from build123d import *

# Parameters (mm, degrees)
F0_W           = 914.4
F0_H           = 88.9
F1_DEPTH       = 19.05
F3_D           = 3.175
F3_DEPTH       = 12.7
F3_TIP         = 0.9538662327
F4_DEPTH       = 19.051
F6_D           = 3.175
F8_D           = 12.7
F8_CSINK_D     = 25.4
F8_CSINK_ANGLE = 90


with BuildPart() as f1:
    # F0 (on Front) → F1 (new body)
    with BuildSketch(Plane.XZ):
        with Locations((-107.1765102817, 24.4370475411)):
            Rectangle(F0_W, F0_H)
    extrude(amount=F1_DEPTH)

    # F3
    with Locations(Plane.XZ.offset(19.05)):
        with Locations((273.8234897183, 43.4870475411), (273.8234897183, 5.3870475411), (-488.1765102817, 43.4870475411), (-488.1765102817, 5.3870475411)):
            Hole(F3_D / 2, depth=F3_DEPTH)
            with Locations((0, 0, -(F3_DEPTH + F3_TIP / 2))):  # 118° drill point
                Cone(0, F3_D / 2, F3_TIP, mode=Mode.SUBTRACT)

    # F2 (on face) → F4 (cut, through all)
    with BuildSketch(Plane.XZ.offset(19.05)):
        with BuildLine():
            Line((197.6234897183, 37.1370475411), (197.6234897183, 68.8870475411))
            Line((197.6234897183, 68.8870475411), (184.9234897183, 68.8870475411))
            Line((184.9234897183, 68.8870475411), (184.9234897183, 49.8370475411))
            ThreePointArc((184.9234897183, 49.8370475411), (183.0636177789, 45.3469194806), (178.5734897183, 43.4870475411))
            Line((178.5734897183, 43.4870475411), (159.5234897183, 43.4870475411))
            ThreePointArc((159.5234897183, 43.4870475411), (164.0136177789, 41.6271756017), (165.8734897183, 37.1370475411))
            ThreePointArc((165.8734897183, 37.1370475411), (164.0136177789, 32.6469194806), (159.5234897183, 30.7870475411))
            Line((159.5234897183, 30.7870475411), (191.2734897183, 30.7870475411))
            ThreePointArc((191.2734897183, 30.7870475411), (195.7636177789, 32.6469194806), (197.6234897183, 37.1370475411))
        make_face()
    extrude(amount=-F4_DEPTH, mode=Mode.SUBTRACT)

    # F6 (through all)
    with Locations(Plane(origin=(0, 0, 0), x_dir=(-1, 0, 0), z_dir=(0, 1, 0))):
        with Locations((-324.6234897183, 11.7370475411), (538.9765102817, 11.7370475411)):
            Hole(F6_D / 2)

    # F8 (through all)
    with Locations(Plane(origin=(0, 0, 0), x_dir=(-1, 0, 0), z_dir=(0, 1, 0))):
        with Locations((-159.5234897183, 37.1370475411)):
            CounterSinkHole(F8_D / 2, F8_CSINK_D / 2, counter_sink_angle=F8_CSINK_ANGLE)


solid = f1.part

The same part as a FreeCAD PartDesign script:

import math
import FreeCAD as App
import Part
import Sketcher
Q = App.Units.Quantity


def add_polygon(sketch, points):
    """Adds a closed chain of lines whose ends are joined by coincident constraints."""
    first, n = sketch.GeometryCount, len(points)
    for a, b in zip(points, points[1:] + points[:1]):
        sketch.addGeometry(Part.LineSegment(App.Vector(*a, 0), App.Vector(*b, 0)), False)
    for i in range(n):
        sketch.addConstraint(Sketcher.Constraint("Coincident", first + i, 2, first + (i + 1) % n, 1))

doc = App.newDocument("Part")
body = doc.addObject("PartDesign::Body", "Body")

sketch1 = body.newObject("Sketcher::SketchObject", "Sketch")
sketch1.AttachmentSupport = (doc.getObject("XZ_Plane"), [""])
sketch1.MapMode = "FlatFace"
add_polygon(sketch1, [(-564, 69), (-564, -20), (350, -20), (350, 69)])
sketch1.addConstraint(Sketcher.Constraint("Vertical", 0))
sketch1.addConstraint(Sketcher.Constraint("Horizontal", 1))
sketch1.addConstraint(Sketcher.Constraint("Vertical", 2))
sketch1.addConstraint(Sketcher.Constraint("Horizontal", 3))
sketch1.addConstraint(Sketcher.Constraint("DistanceX", 1, 1, 1, 2, Q("36 in")))
sketch1.addConstraint(Sketcher.Constraint("DistanceY", 0, 2, 0, 1, Q("3.5 in")))
sketch1.addConstraint(Sketcher.Constraint("DistanceX", 0, 2, -1, 1, Q("564.37651 mm")))
sketch1.addConstraint(Sketcher.Constraint("DistanceY", 0, 2, -1, 1, Q("20.012952 mm")))
pad1 = body.newObject("PartDesign::Pad", "Pad")
pad1.Profile = sketch1
pad1.Length = Q("0.75 in")

sketch2 = body.newObject("Sketcher::SketchObject", "Sketch001")
sketch2.AttachmentSupport = (doc.getObject("XZ_Plane"), [""])
sketch2.MapMode = "FlatFace"
sketch2.AttachmentOffset = App.Placement(App.Vector(0, 0, 0.75 * 25.4), App.Rotation())
sketch2.addGeometry(Part.Circle(App.Vector(273.8, 43.5, 0), App.Vector(0, 0, 1), 1.6), False)
sketch2.addGeometry(Part.Circle(App.Vector(273.8, 5.4, 0), App.Vector(0, 0, 1), 1.6), False)
sketch2.addGeometry(Part.Circle(App.Vector(-488.2, 43.5, 0), App.Vector(0, 0, 1), 1.6), False)
sketch2.addGeometry(Part.Circle(App.Vector(-488.2, 5.4, 0), App.Vector(0, 0, 1), 1.6), False)
sketch2.addConstraint(Sketcher.Constraint("Equal", 0, 1))
sketch2.addConstraint(Sketcher.Constraint("Equal", 1, 2))
sketch2.addConstraint(Sketcher.Constraint("Equal", 2, 3))
sketch2.addConstraint(Sketcher.Constraint("Horizontal", 0, 3, 2, 3))
sketch2.addConstraint(Sketcher.Constraint("Horizontal", 1, 3, 3, 3))
sketch2.addConstraint(Sketcher.Constraint("Vertical", 0, 3, 1, 3))
sketch2.addConstraint(Sketcher.Constraint("Vertical", 2, 3, 3, 3))
sketch2.addConstraint(Sketcher.Constraint("Diameter", 0, Q("0.125 in")))
sketch2.addConstraint(Sketcher.Constraint("DistanceX", 2, 3, 0, 3, Q("30 in")))
sketch2.addConstraint(Sketcher.Constraint("DistanceY", 1, 3, 0, 3, Q("1.5 in")))
sketch2.addConstraint(Sketcher.Constraint("DistanceX", -1, 1, 0, 3, Q("273.82349 mm")))
sketch2.addConstraint(Sketcher.Constraint("DistanceY", -1, 1, 0, 3, Q("43.487048 mm")))
doc.recompute()
hole = body.newObject("PartDesign::Hole", "Hole")
hole.Profile = sketch2
hole.ThreadType = "None"
hole.Diameter = Q("0.125 in")
hole.DepthType = "Dimension"
hole.Depth = Q("0.5 in")
hole.DrillPoint = "Angled"
hole.DrillPointAngle = 118

sketch3 = body.newObject("Sketcher::SketchObject", "Sketch002")
sketch3.AttachmentSupport = (doc.getObject("XZ_Plane"), [""])
sketch3.MapMode = "FlatFace"
sketch3.AttachmentOffset = App.Placement(App.Vector(0, 0, 0.75 * 25.4), App.Rotation())
sketch3.addGeometry(Part.LineSegment(App.Vector(198, 37, 0), App.Vector(198, 69, 0)), False)
sketch3.addGeometry(Part.LineSegment(App.Vector(198, 69, 0), App.Vector(185, 69, 0)), False)
sketch3.addGeometry(Part.LineSegment(App.Vector(185, 69, 0), App.Vector(185, 50, 0)), False)
sketch3.addGeometry(Part.ArcOfCircle(Part.Circle(App.Vector(179, 50, 0), App.Vector(0, 0, 1), 6), math.radians(-90), math.radians(0)), False)
sketch3.addGeometry(Part.LineSegment(App.Vector(179, 43, 0), App.Vector(160, 43, 0)), False)
sketch3.addGeometry(Part.ArcOfCircle(Part.Circle(App.Vector(160, 37, 0), App.Vector(0, 0, 1), 6), math.radians(0), math.radians(90)), False)
sketch3.addGeometry(Part.ArcOfCircle(Part.Circle(App.Vector(160, 37, 0), App.Vector(0, 0, 1), 6), math.radians(-90), math.radians(0)), False)
sketch3.addGeometry(Part.LineSegment(App.Vector(160, 31, 0), App.Vector(191, 31, 0)), False)
sketch3.addGeometry(Part.ArcOfCircle(Part.Circle(App.Vector(191, 37, 0), App.Vector(0, 0, 1), 6), math.radians(-90), math.radians(0)), False)
sketch3.addConstraint(Sketcher.Constraint("Coincident", 0, 2, 1, 1))
sketch3.addConstraint(Sketcher.Constraint("Coincident", 1, 2, 2, 1))
sketch3.addConstraint(Sketcher.Constraint("Tangent", 2, 2, 3, 2))
sketch3.addConstraint(Sketcher.Constraint("Tangent", 3, 1, 4, 1))
sketch3.addConstraint(Sketcher.Constraint("Tangent", 4, 2, 5, 2))
sketch3.addConstraint(Sketcher.Constraint("Tangent", 5, 1, 6, 2))
sketch3.addConstraint(Sketcher.Constraint("Tangent", 6, 1, 7, 1))
sketch3.addConstraint(Sketcher.Constraint("Tangent", 7, 2, 8, 1))
sketch3.addConstraint(Sketcher.Constraint("Tangent", 8, 2, 0, 1))
sketch3.addConstraint(Sketcher.Constraint("Vertical", 0))
sketch3.addConstraint(Sketcher.Constraint("Horizontal", 1))
sketch3.addConstraint(Sketcher.Constraint("Vertical", 2))
sketch3.addConstraint(Sketcher.Constraint("Horizontal", 4))
sketch3.addConstraint(Sketcher.Constraint("Horizontal", 7))
sketch3.addConstraint(Sketcher.Constraint("Equal", 3, 5))
sketch3.addConstraint(Sketcher.Constraint("Equal", 5, 6))
sketch3.addConstraint(Sketcher.Constraint("Equal", 6, 8))
sketch3.addConstraint(Sketcher.Constraint("Horizontal", 8, 3, 5, 1))
sketch3.addConstraint(Sketcher.Constraint("Equal", 7, 0))
sketch3.addConstraint(Sketcher.Constraint("Equal", 4, 2))
sketch3.addConstraint(Sketcher.Constraint("Radius", 3, Q("0.25 in")))
sketch3.addConstraint(Sketcher.Constraint("DistanceX", 5, 3, 1, 2, Q("1 in")))
sketch3.addConstraint(Sketcher.Constraint("DistanceX", -1, 1, 3, 3, Q("178.57349 mm")))
sketch3.addConstraint(Sketcher.Constraint("DistanceY", -1, 1, 3, 3, Q("49.837048 mm")))
pocket1 = body.newObject("PartDesign::Pocket", "Pocket")
pocket1.Profile = sketch3
pocket1.Type = "ThroughAll"

sketch4 = body.newObject("Sketcher::SketchObject", "Sketch003")
sketch4.AttachmentSupport = (doc.getObject("XZ_Plane"), [""])
sketch4.MapMode = "FlatFace"
sketch4.addGeometry(Part.Circle(App.Vector(324.6, 11.7, 0), App.Vector(0, 0, 1), 1.6), False)
sketch4.addGeometry(Part.Circle(App.Vector(-539, 11.7, 0), App.Vector(0, 0, 1), 1.6), False)
sketch4.addConstraint(Sketcher.Constraint("Equal", 0, 1))
sketch4.addConstraint(Sketcher.Constraint("Horizontal", 0, 3, 1, 3))
sketch4.addConstraint(Sketcher.Constraint("Diameter", 0, Q("0.125 in")))
sketch4.addConstraint(Sketcher.Constraint("DistanceX", 1, 3, 0, 3, Q("34 in")))
sketch4.addConstraint(Sketcher.Constraint("DistanceX", -1, 1, 0, 3, Q("324.62349 mm")))
sketch4.addConstraint(Sketcher.Constraint("DistanceY", -1, 1, 0, 3, Q("11.737048 mm")))
doc.recompute()
hole2 = body.newObject("PartDesign::Hole", "Hole001")
hole2.Profile = sketch4
hole2.ThreadType = "None"
hole2.Diameter = Q("0.125 in")
hole2.DepthType = "ThroughAll"
hole2.Reversed = True

sketch5 = body.newObject("Sketcher::SketchObject", "Sketch004")
sketch5.AttachmentSupport = (doc.getObject("XZ_Plane"), [""])
sketch5.MapMode = "FlatFace"
sketch5.addGeometry(Part.Circle(App.Vector(160, 37, 0), App.Vector(0, 0, 1), 6), False)
sketch5.addConstraint(Sketcher.Constraint("Diameter", 0, Q("0.5 in")))
sketch5.addConstraint(Sketcher.Constraint("DistanceX", -1, 1, 0, 3, Q("159.52349 mm")))
sketch5.addConstraint(Sketcher.Constraint("DistanceY", -1, 1, 0, 3, Q("37.137048 mm")))
doc.recompute()
hole3 = body.newObject("PartDesign::Hole", "Hole002")
hole3.Profile = sketch5
hole3.ThreadType = "None"
hole3.Diameter = Q("0.5 in")
hole3.DepthType = "ThroughAll"
hole3.HoleCutType = "Countersink"
hole3.HoleCutDiameter = Q("1 in")
hole3.HoleCutCountersinkAngle = 90
hole3.Reversed = True

doc.recompute()
